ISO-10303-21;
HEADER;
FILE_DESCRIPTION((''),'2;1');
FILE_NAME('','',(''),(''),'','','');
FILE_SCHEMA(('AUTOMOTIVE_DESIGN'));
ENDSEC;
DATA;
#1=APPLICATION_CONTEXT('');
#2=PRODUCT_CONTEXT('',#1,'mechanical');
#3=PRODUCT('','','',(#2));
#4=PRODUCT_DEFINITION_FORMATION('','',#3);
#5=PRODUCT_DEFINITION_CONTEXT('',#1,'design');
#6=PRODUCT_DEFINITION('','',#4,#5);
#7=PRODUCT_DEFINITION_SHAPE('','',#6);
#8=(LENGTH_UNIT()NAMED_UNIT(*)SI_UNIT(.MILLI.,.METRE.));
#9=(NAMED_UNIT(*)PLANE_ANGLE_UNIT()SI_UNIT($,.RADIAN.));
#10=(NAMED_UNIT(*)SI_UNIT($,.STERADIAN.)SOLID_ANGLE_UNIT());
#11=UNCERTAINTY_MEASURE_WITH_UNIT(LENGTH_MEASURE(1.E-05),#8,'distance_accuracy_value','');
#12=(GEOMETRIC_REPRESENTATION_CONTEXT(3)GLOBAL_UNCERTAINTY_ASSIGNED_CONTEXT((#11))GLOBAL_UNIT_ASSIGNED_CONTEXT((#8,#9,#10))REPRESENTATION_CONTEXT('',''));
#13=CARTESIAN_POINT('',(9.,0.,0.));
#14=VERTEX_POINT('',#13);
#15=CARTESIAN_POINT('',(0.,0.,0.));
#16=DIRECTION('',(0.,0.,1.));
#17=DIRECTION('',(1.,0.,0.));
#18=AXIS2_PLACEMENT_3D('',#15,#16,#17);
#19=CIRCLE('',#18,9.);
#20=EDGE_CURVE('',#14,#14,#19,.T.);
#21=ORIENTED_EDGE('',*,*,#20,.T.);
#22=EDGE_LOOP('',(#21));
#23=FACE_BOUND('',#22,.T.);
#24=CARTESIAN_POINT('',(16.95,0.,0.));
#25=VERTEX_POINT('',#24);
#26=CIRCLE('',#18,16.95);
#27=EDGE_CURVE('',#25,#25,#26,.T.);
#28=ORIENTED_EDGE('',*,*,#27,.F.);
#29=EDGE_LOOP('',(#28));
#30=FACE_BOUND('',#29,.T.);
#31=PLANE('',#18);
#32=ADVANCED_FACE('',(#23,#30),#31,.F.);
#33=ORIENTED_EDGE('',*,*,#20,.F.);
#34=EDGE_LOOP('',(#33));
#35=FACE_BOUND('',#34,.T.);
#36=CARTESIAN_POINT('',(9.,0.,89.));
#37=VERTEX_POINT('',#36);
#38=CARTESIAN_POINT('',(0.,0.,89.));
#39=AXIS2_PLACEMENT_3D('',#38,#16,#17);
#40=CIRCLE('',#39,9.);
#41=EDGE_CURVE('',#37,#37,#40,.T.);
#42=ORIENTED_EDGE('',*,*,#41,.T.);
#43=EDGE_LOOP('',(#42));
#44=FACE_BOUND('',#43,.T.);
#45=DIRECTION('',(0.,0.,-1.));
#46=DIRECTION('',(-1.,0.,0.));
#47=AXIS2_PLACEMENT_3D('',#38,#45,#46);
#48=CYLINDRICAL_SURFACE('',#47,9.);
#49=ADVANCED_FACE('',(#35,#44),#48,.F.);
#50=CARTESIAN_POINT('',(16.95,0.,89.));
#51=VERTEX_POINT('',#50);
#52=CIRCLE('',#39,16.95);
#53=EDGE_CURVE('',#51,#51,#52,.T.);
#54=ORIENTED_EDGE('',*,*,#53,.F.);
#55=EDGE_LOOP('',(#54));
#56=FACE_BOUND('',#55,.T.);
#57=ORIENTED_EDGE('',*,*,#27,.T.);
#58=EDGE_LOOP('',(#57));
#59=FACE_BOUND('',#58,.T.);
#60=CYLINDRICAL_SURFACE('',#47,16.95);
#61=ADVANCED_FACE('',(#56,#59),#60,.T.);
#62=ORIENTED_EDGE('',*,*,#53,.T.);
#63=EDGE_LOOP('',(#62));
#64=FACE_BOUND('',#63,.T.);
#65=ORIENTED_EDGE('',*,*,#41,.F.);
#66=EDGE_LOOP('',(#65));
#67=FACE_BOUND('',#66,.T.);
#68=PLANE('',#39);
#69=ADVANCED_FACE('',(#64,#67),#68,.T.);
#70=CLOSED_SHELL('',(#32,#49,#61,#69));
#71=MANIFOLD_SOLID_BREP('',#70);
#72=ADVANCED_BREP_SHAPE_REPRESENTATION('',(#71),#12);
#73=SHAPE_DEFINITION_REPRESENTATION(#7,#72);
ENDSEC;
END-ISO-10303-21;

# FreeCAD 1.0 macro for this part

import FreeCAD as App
import Part
import Sketcher
from FreeCAD import Vector

doc = App.newDocument("Part")
body = doc.addObject("PartDesign::Body", "Body")

# Sketch on XY plane
sketch1 = body.newObject("Sketcher::SketchObject", "Sketch")
sketch1.AttachmentSupport = (doc.getObject("XY_Plane"), [""])
sketch1.MapMode = "FlatFace"
sketch1.addGeometry([
    Part.Circle(Vector(0, 0, 0), Vector(0, 0, 1), 17),
    Part.Circle(Vector(0, 0, 0), Vector(0, 0, 1), 9),
], False)
sketch1.addConstraint([
    Sketcher.Constraint("Coincident", 0, 3, -1, 1),
    Sketcher.Constraint("Coincident", 1, 3, -1, 1),
    Sketcher.Constraint("Diameter", 1, 18.0),
    Sketcher.Constraint("Diameter", 0, 33.9),
])
pad1 = body.newObject("PartDesign::Pad", "Pad")
pad1.Profile = sketch1
pad1.Length = 89

doc.recompute()
